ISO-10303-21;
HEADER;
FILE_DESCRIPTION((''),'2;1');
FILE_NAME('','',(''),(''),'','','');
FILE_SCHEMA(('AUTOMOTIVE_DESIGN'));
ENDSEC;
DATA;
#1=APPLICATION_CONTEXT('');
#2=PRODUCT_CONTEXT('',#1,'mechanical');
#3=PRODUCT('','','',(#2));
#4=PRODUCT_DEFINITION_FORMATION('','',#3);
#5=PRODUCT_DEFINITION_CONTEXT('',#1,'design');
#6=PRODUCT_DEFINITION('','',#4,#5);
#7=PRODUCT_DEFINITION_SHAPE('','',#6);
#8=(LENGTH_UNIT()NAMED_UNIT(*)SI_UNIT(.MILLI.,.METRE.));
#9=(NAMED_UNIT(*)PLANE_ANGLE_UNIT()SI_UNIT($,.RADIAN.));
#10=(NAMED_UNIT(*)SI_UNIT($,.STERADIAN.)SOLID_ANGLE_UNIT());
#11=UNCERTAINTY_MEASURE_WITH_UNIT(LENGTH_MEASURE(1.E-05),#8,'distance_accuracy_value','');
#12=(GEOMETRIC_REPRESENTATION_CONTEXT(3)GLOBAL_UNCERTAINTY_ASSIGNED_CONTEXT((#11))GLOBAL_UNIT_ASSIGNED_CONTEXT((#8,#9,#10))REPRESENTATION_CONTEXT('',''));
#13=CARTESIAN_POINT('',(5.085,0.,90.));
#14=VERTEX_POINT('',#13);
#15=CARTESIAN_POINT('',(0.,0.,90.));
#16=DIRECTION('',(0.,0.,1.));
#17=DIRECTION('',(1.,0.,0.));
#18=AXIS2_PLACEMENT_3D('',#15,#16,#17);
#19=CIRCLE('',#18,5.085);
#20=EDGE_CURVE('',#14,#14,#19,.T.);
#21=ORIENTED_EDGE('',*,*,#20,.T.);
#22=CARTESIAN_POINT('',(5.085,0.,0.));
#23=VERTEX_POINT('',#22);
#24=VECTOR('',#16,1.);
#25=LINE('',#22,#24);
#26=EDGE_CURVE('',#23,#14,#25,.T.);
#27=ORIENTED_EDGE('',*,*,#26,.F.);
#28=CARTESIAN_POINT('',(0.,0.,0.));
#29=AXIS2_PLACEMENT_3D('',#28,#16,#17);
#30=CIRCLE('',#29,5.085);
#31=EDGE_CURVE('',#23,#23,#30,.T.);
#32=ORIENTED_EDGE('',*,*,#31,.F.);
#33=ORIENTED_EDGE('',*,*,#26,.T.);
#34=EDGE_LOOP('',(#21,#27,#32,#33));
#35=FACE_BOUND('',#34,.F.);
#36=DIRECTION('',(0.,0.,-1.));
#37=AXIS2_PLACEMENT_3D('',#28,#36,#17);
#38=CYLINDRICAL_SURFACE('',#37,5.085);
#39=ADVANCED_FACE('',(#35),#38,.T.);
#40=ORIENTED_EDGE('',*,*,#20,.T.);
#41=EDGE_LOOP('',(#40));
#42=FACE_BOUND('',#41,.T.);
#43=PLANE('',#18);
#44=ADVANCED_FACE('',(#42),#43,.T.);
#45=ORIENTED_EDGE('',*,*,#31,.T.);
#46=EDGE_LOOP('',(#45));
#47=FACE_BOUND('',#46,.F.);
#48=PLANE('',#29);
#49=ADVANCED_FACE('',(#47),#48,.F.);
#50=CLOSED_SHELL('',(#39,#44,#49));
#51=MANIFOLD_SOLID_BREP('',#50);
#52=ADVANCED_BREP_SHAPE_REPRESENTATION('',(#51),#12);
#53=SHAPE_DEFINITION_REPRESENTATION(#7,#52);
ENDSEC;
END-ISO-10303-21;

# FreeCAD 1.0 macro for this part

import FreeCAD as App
import Part
import Sketcher

V = App.Vector

doc = App.newDocument("Part")
params = doc.addObject("Spreadsheet::Sheet", "Params")
for row, (alias, value) in enumerate([
    ("sketch1_diameter", "10.17 mm"),
    ("pad1_length", "90 mm"),
], start=1):
    params.set(f"A{row}", alias)
    params.set(f"B{row}", "=" + value)
    params.setAlias(f"B{row}", alias)

body = doc.addObject("PartDesign::Body", "Body")

sketch1 = body.newObject("Sketcher::SketchObject", "Sketch")
sketch1.AttachmentSupport = (doc.getObject("XY_Plane"), [""])
sketch1.MapMode = "FlatFace"
sketch1.addGeometry(Part.Circle(V(0, 0, 0), V(0, 0, 1), 5), False)
sketch1.addConstraint([
    Sketcher.Constraint("Coincident", 0, 3, -1, 1),
    Sketcher.Constraint("Diameter", 0, 10.17),
])
sketch1.setExpression("Constraints[1]", "Params.sketch1_diameter")
pad1 = body.newObject("PartDesign::Pad", "Pad")
pad1.Profile = sketch1
pad1.setExpression("Length", "Params.pad1_length")

doc.recompute()
